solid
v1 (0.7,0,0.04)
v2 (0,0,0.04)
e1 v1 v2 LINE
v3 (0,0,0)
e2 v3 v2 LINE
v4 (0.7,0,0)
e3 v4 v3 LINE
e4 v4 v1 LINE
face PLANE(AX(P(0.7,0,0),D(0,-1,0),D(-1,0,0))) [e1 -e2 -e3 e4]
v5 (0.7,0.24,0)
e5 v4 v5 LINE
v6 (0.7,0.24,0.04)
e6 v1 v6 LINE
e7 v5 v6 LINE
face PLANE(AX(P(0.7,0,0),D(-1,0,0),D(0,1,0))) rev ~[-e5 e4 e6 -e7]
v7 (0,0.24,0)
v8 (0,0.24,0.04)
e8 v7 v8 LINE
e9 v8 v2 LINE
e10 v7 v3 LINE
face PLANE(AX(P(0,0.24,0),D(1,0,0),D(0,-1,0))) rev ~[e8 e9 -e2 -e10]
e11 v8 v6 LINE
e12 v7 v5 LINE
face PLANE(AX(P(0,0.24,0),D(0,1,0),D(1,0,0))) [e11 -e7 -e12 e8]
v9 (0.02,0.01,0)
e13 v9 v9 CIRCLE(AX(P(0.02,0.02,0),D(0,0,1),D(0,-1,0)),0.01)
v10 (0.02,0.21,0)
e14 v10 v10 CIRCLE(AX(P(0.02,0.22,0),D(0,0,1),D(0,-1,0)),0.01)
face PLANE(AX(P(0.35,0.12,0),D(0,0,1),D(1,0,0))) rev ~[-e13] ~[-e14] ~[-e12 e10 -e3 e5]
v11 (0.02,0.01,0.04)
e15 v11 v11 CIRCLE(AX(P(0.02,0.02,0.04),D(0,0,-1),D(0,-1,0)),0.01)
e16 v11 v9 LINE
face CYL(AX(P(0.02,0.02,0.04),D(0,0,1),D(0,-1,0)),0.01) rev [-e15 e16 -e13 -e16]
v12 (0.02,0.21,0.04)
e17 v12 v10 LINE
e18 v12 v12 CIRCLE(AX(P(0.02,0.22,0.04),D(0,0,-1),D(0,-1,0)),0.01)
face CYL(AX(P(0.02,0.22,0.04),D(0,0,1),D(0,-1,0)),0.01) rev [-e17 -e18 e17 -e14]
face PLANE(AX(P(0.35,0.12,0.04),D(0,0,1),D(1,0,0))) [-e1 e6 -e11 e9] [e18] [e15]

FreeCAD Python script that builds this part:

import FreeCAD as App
import Part
import Sketcher

V = App.Vector

doc = App.newDocument("Part")
body = doc.addObject("PartDesign::Body", "Body")

sketch1 = doc.addObject("Sketcher::SketchObject", "Sketch")
body.addObject(sketch1)
sketch1.AttachmentSupport = (doc.XY_Plane, [""])
sketch1.MapMode = "FlatFace"
sketch1.addGeometry(Part.LineSegment(V(0, 0, 0), V(0.7, 0, 0)), False)
sketch1.addGeometry(Part.LineSegment(V(0.7, 0, 0), V(0.7, 0.24, 0)), False)
sketch1.addGeometry(Part.LineSegment(V(0.7, 0.24, 0), V(0, 0.24, 0)), False)
sketch1.addGeometry(Part.LineSegment(V(0, 0.24, 0), V(0, 0, 0)), False)
sketch1.addConstraint(Sketcher.Constraint("Coincident", 0, 2, 1, 1))
sketch1.addConstraint(Sketcher.Constraint("Coincident", 1, 2, 2, 1))
sketch1.addConstraint(Sketcher.Constraint("Coincident", 2, 2, 3, 1))
sketch1.addConstraint(Sketcher.Constraint("Coincident", 3, 2, 0, 1))
sketch1.addConstraint(Sketcher.Constraint("Horizontal", 0))
sketch1.addConstraint(Sketcher.Constraint("Vertical", 1))
sketch1.addConstraint(Sketcher.Constraint("Horizontal", 2))
sketch1.addConstraint(Sketcher.Constraint("Vertical", 3))
sketch1.addConstraint(Sketcher.Constraint("Coincident", 3, 2, -1, 1))
sketch1.addConstraint(Sketcher.Constraint("DistanceX", 0, 1, 0, 2, 0.7))
sketch1.addConstraint(Sketcher.Constraint("DistanceY", 1, 1, 1, 2, 0.24))
pad1 = doc.addObject("PartDesign::Pad", "Pad")
body.addObject(pad1)
pad1.Profile = sketch1
pad1.Length = 0.04

sketch2 = doc.addObject("Sketcher::SketchObject", "Sketch001")
body.addObject(sketch2)
sketch2.AttachmentSupport = (doc.XY_Plane, [""])
sketch2.MapMode = "FlatFace"
sketch2.AttachmentOffset = App.Placement(V(0, 0, 0.04), App.Rotation())
sketch2.addGeometry(Part.Circle(V(0.02, 0.02, 0), V(0, 0, 1), 0.01), False)
sketch2.addConstraint(Sketcher.Constraint("Diameter", 0, 0.02))
sketch2.addConstraint(Sketcher.Constraint("DistanceX", -1, 1, 0, 3, 0.02))
sketch2.addConstraint(Sketcher.Constraint("DistanceY", -1, 1, 0, 3, 0.02))
doc.recompute()
hole = doc.addObject("PartDesign::Hole", "Hole")
body.addObject(hole)
hole.Profile = sketch2
hole.ThreadType = "None"
hole.Diameter = 0.02
hole.DepthType = "ThroughAll"

sketch3 = doc.addObject("Sketcher::SketchObject", "Sketch002")
body.addObject(sketch3)
sketch3.AttachmentSupport = (doc.XY_Plane, [""])
sketch3.MapMode = "FlatFace"
sketch3.AttachmentOffset = App.Placement(V(0, 0, 0.04), App.Rotation())
sketch3.addGeometry(Part.Circle(V(0.02, 0.22, 0), V(0, 0, 1), 0.01), False)
sketch3.addConstraint(Sketcher.Constraint("Diameter", 0, 0.02))
sketch3.addConstraint(Sketcher.Constraint("DistanceX", -1, 1, 0, 3, 0.02))
sketch3.addConstraint(Sketcher.Constraint("DistanceY", -1, 1, 0, 3, 0.22))
doc.recompute()
hole2 = doc.addObject("PartDesign::Hole", "Hole001")
body.addObject(hole2)
hole2.Profile = sketch3
hole2.ThreadType = "None"
hole2.Diameter = 0.02
hole2.DepthType = "ThroughAll"

doc.recompute()
